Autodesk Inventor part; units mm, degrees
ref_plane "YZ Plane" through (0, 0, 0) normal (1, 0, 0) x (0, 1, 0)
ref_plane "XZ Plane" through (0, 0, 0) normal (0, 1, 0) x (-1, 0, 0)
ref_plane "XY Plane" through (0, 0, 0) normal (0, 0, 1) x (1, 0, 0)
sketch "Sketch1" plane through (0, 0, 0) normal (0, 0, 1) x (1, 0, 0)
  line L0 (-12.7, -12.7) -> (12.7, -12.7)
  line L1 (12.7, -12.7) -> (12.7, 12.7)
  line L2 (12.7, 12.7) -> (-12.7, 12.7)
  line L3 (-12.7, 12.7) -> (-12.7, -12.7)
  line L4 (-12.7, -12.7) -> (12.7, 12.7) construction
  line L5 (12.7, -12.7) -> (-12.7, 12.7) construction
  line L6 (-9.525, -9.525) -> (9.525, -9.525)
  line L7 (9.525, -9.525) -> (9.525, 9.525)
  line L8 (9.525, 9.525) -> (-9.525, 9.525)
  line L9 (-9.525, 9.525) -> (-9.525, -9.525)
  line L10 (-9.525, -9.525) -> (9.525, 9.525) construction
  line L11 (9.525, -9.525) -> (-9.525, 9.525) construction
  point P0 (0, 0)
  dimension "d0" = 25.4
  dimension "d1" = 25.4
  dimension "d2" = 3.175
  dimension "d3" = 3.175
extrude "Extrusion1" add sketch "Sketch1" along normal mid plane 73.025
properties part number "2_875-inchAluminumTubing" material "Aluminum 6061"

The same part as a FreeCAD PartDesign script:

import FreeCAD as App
import Part
import Sketcher
from FreeCAD import Vector
Q = App.Units.Quantity


def add_polygon(sketch, points):
    """Adds a closed chain of lines whose ends are joined by coincident constraints."""
    first, n = sketch.GeometryCount, len(points)
    for a, b in zip(points, points[1:] + points[:1]):
        sketch.addGeometry(Part.LineSegment(App.Vector(*a, 0), App.Vector(*b, 0)), False)
    for i in range(n):
        sketch.addConstraint(Sketcher.Constraint("Coincident", first + i, 2, first + (i + 1) % n, 1))

doc = App.newDocument("Part")
body = doc.addObject("PartDesign::Body", "Body")

# Sketch on XY plane
sketch1 = doc.addObject("Sketcher::SketchObject", "Sketch")
body.addObject(sketch1)
sketch1.AttachmentSupport = (doc.XY_Plane, [""])
sketch1.MapMode = "FlatFace"
add_polygon(sketch1, [(-13, 13), (-13, -13), (13, -13), (13, 13)])  # lines 0-3
add_polygon(sketch1, [(10, -10), (-10, -10), (-10, 10), (10, 10)])  # lines 4-7
sketch1.addConstraint(Sketcher.Constraint("Vertical", 0))
sketch1.addConstraint(Sketcher.Constraint("Horizontal", 1))
sketch1.addConstraint(Sketcher.Constraint("Vertical", 2))
sketch1.addConstraint(Sketcher.Constraint("Horizontal", 3))
sketch1.addConstraint(Sketcher.Constraint("Horizontal", 4))
sketch1.addConstraint(Sketcher.Constraint("Vertical", 5))
sketch1.addConstraint(Sketcher.Constraint("Horizontal", 6))
sketch1.addConstraint(Sketcher.Constraint("Vertical", 7))
sketch1.addConstraint(Sketcher.Constraint("Symmetric", 0, 2, 2, 2, -1, 1))
sketch1.addConstraint(Sketcher.Constraint("Symmetric", 4, 2, 6, 2, -1, 1))
sketch1.addConstraint(Sketcher.Constraint("Equal", 3, 0))
sketch1.addConstraint(Sketcher.Constraint("Equal", 6, 5))
sketch1.addConstraint(Sketcher.Constraint("DistanceX", 1, 1, 1, 2, Q("1 in")))
sketch1.addConstraint(Sketcher.Constraint("DistanceX", 0, 2, 4, 2, Q("0.125 in")))
pad1 = doc.addObject("PartDesign::Pad", "Pad")
body.addObject(pad1)
pad1.Profile = sketch1
pad1.Length = Q("2.875 in")
pad1.Midplane = True

doc.recompute()
